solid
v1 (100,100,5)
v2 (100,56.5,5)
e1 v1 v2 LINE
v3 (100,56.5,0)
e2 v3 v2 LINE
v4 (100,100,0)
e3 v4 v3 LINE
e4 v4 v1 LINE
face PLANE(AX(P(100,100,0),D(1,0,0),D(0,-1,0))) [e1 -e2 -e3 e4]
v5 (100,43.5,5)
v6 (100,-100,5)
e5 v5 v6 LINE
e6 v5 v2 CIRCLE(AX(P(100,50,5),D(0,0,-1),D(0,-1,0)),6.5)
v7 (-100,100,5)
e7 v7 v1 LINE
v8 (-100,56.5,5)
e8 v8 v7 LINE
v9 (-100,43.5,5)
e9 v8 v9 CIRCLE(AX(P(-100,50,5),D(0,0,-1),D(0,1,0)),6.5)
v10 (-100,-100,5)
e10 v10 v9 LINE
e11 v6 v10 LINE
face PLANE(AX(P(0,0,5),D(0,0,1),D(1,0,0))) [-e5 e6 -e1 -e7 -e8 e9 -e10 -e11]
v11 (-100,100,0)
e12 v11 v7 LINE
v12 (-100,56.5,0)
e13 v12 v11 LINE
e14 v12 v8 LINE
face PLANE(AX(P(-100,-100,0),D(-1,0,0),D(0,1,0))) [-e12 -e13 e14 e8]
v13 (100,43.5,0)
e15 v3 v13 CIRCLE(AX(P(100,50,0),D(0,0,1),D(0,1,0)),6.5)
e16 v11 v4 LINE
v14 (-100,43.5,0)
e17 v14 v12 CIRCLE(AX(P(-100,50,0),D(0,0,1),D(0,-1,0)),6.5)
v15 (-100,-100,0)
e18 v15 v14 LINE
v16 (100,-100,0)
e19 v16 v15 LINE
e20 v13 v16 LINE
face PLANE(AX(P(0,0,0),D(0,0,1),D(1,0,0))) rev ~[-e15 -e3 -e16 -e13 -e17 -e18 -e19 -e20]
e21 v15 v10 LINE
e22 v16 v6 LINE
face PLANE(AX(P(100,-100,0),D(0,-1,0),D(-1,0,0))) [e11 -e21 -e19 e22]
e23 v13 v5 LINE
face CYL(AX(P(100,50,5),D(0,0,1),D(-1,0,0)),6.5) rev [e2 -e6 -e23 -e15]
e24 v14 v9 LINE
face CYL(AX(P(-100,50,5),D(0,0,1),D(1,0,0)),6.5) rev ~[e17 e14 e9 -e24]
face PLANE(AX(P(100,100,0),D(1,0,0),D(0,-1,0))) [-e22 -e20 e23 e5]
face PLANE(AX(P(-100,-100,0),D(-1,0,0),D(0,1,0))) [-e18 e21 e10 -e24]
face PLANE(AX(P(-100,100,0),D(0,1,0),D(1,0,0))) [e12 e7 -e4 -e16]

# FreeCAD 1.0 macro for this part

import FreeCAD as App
import Part
import Sketcher

doc = App.newDocument("Part")
body = doc.addObject("PartDesign::Body", "Body")

sketch1 = body.newObject("Sketcher::SketchObject", "Sketch")
sketch1.AttachmentSupport = (doc.getObject("XY_Plane"), [""])
sketch1.MapMode = "FlatFace"
sketch1.addGeometry(Part.LineSegment(App.Vector(100, 100, 0), App.Vector(-100, 100, 0)), False)
sketch1.addGeometry(Part.LineSegment(App.Vector(-100, 100, 0), App.Vector(-100, -100, 0)), False)
sketch1.addGeometry(Part.LineSegment(App.Vector(-100, -100, 0), App.Vector(100, -100, 0)), False)
sketch1.addGeometry(Part.LineSegment(App.Vector(100, -100, 0), App.Vector(100, 100, 0)), False)
sketch1.addConstraint(Sketcher.Constraint("Coincident", 0, 2, 1, 1))
sketch1.addConstraint(Sketcher.Constraint("Coincident", 1, 2, 2, 1))
sketch1.addConstraint(Sketcher.Constraint("Coincident", 2, 2, 3, 1))
sketch1.addConstraint(Sketcher.Constraint("Coincident", 3, 2, 0, 1))
sketch1.addConstraint(Sketcher.Constraint("Horizontal", 0))
sketch1.addConstraint(Sketcher.Constraint("Vertical", 1))
sketch1.addConstraint(Sketcher.Constraint("Horizontal", 2))
sketch1.addConstraint(Sketcher.Constraint("Vertical", 3))
sketch1.addConstraint(Sketcher.Constraint("Symmetric", 0, 2, 2, 2, -1, 1))
sketch1.addConstraint(Sketcher.Constraint("Equal", 2, 1))
sketch1.addConstraint(Sketcher.Constraint("DistanceX", 0, 2, 0, 1, 200.0))
pad1 = body.newObject("PartDesign::Pad", "Pad")
pad1.Profile = sketch1
pad1.Length = 5

sketch2 = body.newObject("Sketcher::SketchObject", "Sketch001")
sketch2.AttachmentSupport = (doc.getObject("XY_Plane"), [""])
sketch2.MapMode = "FlatFace"
sketch2.AttachmentOffset = App.Placement(App.Vector(0, 0, 5), App.Rotation())
sketch2.addGeometry(Part.Circle(App.Vector(-100, 50, 0), App.Vector(0, 0, 1), 6), False)
sketch2.addConstraint(Sketcher.Constraint("Diameter", 0, 13.0))
sketch2.addConstraint(Sketcher.Constraint("DistanceX", 0, 3, -1, 1, 100.0))
sketch2.addConstraint(Sketcher.Constraint("DistanceY", -1, 1, 0, 3, 50.0))
pocket1 = body.newObject("PartDesign::Pocket", "Pocket")
pocket1.Profile = sketch2
pocket1.Length = 5
doc.recompute()

mirrored = body.newObject("PartDesign::Mirrored", "Mirrored")
mirrored.Originals = [pocket1]
mirrored.MirrorPlane = (doc.getObject("YZ_Plane"), [""])
body.Tip = mirrored

doc.recompute()
